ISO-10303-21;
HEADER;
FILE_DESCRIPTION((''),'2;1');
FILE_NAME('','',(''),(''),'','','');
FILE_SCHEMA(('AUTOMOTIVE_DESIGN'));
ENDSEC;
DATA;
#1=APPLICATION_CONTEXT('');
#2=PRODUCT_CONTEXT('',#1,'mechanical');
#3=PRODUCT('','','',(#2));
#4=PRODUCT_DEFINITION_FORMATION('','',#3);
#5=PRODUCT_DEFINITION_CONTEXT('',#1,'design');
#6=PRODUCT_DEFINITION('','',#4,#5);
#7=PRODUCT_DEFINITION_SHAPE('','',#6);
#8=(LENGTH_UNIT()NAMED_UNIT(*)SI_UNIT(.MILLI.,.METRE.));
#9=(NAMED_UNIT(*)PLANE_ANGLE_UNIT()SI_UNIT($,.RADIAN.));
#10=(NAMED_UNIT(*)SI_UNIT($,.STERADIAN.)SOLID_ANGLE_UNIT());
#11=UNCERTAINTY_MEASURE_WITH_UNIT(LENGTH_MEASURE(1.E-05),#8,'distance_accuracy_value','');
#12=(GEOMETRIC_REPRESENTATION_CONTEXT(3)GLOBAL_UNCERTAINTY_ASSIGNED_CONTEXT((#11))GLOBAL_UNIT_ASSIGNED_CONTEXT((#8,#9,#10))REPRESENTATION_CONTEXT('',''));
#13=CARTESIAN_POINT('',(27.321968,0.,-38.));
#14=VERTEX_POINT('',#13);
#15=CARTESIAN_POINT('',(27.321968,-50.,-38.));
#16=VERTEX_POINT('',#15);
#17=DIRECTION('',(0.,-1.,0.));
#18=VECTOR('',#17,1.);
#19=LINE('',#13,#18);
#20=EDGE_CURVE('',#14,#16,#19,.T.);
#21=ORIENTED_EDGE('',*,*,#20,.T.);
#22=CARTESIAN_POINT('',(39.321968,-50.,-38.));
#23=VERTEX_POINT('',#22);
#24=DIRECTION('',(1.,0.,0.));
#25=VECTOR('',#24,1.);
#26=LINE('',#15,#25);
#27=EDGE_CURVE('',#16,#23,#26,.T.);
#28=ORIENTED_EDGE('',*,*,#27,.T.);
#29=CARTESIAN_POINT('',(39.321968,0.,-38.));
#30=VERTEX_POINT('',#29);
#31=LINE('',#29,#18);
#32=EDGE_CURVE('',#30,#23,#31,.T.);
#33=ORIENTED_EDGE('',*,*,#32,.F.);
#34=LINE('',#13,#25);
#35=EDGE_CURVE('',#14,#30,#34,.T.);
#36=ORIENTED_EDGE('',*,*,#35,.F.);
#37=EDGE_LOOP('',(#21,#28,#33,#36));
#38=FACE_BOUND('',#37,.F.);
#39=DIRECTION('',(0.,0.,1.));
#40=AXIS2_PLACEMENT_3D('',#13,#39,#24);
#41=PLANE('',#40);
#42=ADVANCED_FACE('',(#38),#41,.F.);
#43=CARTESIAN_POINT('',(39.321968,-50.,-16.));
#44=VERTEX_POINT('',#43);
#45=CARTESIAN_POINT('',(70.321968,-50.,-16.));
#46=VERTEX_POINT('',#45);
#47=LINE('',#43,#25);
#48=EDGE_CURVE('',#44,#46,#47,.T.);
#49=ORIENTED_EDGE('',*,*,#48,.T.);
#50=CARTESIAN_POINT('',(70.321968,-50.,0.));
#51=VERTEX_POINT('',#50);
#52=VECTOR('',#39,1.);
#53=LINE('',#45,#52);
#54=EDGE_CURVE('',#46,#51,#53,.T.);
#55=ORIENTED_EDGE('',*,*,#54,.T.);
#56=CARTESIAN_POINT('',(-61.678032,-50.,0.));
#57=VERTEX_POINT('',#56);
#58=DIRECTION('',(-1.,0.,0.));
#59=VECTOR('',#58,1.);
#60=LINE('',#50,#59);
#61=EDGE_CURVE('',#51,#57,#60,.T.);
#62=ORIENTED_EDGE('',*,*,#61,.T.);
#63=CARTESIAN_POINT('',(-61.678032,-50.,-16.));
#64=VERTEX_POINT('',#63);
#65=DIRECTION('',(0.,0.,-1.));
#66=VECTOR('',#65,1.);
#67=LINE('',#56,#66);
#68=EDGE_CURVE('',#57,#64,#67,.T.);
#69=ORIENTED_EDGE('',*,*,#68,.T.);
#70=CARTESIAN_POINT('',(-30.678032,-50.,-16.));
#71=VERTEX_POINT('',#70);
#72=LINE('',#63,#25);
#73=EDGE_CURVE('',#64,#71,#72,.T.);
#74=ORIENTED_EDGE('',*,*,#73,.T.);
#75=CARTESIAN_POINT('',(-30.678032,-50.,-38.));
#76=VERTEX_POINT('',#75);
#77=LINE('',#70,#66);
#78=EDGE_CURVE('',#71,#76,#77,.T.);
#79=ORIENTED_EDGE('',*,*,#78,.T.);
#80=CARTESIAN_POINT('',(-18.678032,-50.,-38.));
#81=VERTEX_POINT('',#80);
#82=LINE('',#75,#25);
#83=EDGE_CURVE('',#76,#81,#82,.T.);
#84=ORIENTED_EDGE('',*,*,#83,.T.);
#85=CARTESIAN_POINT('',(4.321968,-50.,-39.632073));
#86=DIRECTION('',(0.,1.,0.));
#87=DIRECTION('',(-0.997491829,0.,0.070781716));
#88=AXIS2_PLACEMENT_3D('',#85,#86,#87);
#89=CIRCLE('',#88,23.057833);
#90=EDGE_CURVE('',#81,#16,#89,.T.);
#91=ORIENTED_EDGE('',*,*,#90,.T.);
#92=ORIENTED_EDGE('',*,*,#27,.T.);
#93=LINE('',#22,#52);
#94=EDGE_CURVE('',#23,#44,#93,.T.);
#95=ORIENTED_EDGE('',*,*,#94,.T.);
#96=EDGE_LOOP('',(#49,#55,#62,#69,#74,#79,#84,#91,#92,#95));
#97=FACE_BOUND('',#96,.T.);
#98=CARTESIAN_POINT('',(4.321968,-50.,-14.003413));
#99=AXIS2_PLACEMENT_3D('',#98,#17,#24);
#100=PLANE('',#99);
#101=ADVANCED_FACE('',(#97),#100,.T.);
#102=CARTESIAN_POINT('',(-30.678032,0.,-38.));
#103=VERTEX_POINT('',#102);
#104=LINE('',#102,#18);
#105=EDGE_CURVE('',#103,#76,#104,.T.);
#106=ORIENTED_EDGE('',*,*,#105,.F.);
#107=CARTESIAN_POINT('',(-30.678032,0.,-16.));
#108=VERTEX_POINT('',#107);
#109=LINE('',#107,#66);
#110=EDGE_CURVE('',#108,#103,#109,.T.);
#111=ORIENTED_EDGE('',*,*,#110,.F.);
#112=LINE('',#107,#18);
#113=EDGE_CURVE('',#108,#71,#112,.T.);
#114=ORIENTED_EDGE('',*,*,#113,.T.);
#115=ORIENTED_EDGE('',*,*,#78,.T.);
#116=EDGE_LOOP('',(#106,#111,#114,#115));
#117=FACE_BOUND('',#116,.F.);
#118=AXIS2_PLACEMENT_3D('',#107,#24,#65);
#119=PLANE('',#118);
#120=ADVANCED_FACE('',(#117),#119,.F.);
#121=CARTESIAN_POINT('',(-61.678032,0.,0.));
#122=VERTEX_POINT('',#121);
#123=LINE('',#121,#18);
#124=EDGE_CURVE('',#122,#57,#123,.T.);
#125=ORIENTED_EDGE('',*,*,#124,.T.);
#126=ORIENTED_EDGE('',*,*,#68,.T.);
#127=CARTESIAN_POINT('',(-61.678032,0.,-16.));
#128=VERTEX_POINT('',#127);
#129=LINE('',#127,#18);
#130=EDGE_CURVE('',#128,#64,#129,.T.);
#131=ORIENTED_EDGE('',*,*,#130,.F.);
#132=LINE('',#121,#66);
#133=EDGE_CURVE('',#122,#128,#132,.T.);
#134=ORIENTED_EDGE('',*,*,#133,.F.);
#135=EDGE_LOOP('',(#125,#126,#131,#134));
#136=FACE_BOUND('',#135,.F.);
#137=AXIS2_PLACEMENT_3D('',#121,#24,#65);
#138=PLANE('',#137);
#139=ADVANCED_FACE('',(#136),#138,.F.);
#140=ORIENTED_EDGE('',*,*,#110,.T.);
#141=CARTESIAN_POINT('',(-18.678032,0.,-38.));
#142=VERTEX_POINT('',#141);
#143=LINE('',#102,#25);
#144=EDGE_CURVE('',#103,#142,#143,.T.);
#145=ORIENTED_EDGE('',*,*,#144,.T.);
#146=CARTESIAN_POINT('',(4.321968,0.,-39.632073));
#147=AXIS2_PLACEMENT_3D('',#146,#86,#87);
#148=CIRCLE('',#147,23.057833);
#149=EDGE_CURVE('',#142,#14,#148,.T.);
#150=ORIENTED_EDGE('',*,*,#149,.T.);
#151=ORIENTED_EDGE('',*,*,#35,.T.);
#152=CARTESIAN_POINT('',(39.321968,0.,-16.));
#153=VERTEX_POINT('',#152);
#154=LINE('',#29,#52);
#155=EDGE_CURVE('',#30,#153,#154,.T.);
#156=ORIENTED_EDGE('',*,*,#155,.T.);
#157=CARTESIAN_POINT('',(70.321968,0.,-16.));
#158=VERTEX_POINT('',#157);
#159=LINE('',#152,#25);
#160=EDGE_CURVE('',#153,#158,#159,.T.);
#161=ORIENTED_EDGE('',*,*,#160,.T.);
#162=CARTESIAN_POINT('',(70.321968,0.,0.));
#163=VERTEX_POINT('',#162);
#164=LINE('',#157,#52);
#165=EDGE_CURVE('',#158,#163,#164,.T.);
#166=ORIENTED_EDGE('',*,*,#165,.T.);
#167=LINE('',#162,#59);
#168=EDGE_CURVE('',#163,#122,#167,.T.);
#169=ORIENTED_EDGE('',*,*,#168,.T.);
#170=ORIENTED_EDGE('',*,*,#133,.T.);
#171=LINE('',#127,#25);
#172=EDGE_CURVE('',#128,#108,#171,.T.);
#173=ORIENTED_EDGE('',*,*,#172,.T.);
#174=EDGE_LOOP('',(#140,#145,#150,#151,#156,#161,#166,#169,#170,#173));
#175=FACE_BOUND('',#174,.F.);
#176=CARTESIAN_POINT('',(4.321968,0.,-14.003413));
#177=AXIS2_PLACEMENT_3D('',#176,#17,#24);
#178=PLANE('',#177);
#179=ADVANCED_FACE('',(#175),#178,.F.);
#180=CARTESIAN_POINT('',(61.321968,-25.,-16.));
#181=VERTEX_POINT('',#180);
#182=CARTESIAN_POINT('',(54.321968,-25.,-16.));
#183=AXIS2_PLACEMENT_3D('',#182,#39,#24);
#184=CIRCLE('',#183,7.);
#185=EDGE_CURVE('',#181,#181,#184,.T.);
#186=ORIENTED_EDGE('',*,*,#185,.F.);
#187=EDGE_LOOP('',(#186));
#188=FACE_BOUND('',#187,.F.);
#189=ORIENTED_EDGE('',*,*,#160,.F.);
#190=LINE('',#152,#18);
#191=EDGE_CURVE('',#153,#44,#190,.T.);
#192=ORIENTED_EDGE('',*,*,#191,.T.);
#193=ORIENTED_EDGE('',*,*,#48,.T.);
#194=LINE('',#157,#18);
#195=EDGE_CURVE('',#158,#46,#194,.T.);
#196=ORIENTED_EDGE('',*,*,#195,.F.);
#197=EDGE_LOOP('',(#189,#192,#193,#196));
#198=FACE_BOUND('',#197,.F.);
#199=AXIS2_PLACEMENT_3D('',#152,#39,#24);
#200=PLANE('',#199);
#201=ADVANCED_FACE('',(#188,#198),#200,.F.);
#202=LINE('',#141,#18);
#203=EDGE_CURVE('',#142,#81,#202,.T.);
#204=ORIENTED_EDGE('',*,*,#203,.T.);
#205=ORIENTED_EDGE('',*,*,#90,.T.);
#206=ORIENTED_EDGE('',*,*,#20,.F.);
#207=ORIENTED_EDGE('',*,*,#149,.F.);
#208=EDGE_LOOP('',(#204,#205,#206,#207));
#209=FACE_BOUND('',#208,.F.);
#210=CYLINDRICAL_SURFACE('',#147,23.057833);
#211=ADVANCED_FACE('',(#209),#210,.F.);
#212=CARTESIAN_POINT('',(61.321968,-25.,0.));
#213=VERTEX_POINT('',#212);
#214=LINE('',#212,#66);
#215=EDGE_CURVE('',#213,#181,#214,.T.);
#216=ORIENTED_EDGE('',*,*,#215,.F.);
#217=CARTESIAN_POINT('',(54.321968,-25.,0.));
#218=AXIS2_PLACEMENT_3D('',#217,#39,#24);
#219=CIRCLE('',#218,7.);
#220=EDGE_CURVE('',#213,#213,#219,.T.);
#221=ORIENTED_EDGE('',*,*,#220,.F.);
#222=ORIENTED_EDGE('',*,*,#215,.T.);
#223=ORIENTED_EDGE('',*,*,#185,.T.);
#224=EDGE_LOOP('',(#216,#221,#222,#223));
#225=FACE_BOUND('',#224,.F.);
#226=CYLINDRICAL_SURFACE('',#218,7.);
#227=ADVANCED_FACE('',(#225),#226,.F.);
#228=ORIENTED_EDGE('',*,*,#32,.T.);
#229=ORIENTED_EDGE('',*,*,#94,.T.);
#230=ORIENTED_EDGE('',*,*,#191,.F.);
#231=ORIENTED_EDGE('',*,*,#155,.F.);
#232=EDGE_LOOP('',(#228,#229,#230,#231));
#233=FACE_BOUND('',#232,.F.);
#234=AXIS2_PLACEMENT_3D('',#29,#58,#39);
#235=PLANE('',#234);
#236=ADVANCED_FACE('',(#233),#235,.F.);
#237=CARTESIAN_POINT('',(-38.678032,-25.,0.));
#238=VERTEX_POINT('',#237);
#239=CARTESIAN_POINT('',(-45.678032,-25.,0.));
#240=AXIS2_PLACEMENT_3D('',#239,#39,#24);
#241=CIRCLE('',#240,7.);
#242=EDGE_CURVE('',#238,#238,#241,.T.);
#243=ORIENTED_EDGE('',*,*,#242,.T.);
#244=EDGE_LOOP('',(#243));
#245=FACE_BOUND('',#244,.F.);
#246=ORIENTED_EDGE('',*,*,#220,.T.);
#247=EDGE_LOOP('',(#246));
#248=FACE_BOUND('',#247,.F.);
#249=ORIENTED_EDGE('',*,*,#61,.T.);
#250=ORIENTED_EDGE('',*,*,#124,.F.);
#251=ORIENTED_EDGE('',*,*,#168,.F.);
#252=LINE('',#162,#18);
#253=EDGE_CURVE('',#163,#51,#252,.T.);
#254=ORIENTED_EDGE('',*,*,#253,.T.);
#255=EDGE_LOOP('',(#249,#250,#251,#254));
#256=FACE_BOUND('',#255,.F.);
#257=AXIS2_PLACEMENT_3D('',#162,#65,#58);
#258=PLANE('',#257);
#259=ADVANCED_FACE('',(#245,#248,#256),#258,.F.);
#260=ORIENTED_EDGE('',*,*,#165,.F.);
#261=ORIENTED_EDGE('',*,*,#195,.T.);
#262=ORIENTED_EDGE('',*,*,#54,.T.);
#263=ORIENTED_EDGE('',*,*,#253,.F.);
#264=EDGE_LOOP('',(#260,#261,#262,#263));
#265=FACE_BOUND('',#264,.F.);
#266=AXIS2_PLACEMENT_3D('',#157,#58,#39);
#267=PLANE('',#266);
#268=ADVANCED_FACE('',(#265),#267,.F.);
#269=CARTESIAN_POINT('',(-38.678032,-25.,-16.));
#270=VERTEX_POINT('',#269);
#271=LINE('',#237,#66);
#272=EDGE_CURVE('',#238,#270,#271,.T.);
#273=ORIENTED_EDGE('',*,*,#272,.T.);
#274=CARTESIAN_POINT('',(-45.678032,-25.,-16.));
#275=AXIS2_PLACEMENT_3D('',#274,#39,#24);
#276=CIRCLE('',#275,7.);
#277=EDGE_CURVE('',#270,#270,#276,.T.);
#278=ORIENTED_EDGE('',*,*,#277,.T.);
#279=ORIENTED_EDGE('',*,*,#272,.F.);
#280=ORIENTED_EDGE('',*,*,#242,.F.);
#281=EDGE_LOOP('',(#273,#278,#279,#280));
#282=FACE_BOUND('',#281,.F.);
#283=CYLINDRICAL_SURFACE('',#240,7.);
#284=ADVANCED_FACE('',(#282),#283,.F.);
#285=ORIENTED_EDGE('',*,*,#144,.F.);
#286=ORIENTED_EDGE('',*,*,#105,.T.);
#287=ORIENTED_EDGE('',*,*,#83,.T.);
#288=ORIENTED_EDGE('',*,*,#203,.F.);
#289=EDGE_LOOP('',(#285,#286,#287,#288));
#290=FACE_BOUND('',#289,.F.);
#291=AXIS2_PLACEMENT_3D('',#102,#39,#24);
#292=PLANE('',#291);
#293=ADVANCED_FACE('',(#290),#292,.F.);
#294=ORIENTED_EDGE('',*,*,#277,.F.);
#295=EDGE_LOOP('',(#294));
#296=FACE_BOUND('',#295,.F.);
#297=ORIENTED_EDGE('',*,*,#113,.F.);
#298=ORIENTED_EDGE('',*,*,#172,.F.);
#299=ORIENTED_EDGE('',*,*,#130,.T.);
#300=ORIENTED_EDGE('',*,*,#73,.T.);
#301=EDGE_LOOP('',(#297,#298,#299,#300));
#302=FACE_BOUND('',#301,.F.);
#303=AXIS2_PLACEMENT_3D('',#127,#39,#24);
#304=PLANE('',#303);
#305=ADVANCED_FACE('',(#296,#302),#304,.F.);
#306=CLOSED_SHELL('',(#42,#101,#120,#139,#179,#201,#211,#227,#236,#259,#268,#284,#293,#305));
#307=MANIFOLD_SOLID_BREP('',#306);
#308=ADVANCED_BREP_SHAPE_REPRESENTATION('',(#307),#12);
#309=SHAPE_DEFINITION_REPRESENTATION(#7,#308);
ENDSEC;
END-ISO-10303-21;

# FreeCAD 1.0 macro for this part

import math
import FreeCAD as App
import Part
import Sketcher

doc = App.newDocument("Part")
body = doc.addObject("PartDesign::Body", "Body")

sketch1 = doc.addObject("Sketcher::SketchObject", "Sketch")
body.addObject(sketch1)
sketch1.AttachmentSupport = (doc.XZ_Plane, [""])
sketch1.MapMode = "FlatFace"
sketch1.addGeometry([
    Part.LineSegment(App.Vector(70, 0, 0), App.Vector(-62, 0, 0)),
    Part.LineSegment(App.Vector(-62, 0, 0), App.Vector(-62, -16, 0)),
    Part.LineSegment(App.Vector(-62, -16, 0), App.Vector(-31, -16, 0)),
    Part.LineSegment(App.Vector(-31, -16, 0), App.Vector(-31, -38, 0)),
    Part.LineSegment(App.Vector(-31, -38, 0), App.Vector(-19, -38, 0)),
    Part.ArcOfCircle(Part.Circle(App.Vector(4, -40, 0), App.Vector(0, 0, 1), 23), math.radians(4), math.radians(176)),
    Part.LineSegment(App.Vector(27, -38, 0), App.Vector(39, -38, 0)),
    Part.LineSegment(App.Vector(39, -38, 0), App.Vector(39, -16, 0)),
    Part.LineSegment(App.Vector(39, -16, 0), App.Vector(70, -16, 0)),
    Part.LineSegment(App.Vector(70, -16, 0), App.Vector(70, 0, 0)),
], False)
sketch1.addConstraint([
    Sketcher.Constraint("Coincident", 0, 2, 1, 1),
    Sketcher.Constraint("Coincident", 1, 2, 2, 1),
    Sketcher.Constraint("Coincident", 2, 2, 3, 1),
    Sketcher.Constraint("Coincident", 3, 2, 4, 1),
    Sketcher.Constraint("Coincident", 4, 2, 5, 2),
    Sketcher.Constraint("Coincident", 5, 1, 6, 1),
    Sketcher.Constraint("Coincident", 6, 2, 7, 1),
    Sketcher.Constraint("Coincident", 7, 2, 8, 1),
    Sketcher.Constraint("Coincident", 8, 2, 9, 1),
    Sketcher.Constraint("Coincident", 9, 2, 0, 1),
    Sketcher.Constraint("Horizontal", 0),
    Sketcher.Constraint("Vertical", 1),
    Sketcher.Constraint("Horizontal", 2),
    Sketcher.Constraint("Vertical", 3),
    Sketcher.Constraint("Horizontal", 4),
    Sketcher.Constraint("Horizontal", 6),
    Sketcher.Constraint("Vertical", 7),
    Sketcher.Constraint("Horizontal", 8),
    Sketcher.Constraint("Vertical", 9),
    Sketcher.Constraint("PointOnObject", 0, 2, -1),
    Sketcher.Constraint("Horizontal", 4, 2, 5, 1),
    Sketcher.Constraint("Horizontal", 2, 2, 7, 2),
    Sketcher.Constraint("Equal", 4, 6),
    Sketcher.Constraint("Equal", 2, 8),
    Sketcher.Constraint("DistanceX", 0, 2, 0, 1, 132.0),
    Sketcher.Constraint("DistanceX", 2, 1, 2, 2, 31.0),
    Sketcher.Constraint("DistanceX", 4, 1, 4, 2, 12.0),
    Sketcher.Constraint("DistanceY", 1, 2, 1, 1, 16.0),
    Sketcher.Constraint("DistanceY", 3, 2, 3, 1, 22.0),
    Sketcher.Constraint("Radius", 5, 23.057833),
    Sketcher.Constraint("DistanceX", -1, 1, 8, 2, 70.321968),
])
pad1 = doc.addObject("PartDesign::Pad", "Pad")
body.addObject(pad1)
pad1.Profile = sketch1
pad1.Length = 50

sketch2 = doc.addObject("Sketcher::SketchObject", "Sketch001")
body.addObject(sketch2)
sketch2.AttachmentSupport = (doc.XY_Plane, [""])
sketch2.MapMode = "FlatFace"
sketch2.addGeometry([
    Part.Circle(App.Vector(54, -25, 0), App.Vector(0, 0, 1), 7),
    Part.Circle(App.Vector(-46, -25, 0), App.Vector(0, 0, 1), 7),
], False)
sketch2.addConstraint([
    Sketcher.Constraint("Equal", 0, 1),
    Sketcher.Constraint("Horizontal", 0, 3, 1, 3),
    Sketcher.Constraint("Diameter", 0, 14.0),
    Sketcher.Constraint("DistanceY", 0, 3, -1, 1, 25.0),
    Sketcher.Constraint("DistanceX", 1, 3, 0, 3, 100.0),
    Sketcher.Constraint("DistanceX", -1, 1, 0, 3, 54.321968),
])
pocket1 = doc.addObject("PartDesign::Pocket", "Pocket")
body.addObject(pocket1)
pocket1.Profile = sketch2
pocket1.Length = 25

doc.recompute()
